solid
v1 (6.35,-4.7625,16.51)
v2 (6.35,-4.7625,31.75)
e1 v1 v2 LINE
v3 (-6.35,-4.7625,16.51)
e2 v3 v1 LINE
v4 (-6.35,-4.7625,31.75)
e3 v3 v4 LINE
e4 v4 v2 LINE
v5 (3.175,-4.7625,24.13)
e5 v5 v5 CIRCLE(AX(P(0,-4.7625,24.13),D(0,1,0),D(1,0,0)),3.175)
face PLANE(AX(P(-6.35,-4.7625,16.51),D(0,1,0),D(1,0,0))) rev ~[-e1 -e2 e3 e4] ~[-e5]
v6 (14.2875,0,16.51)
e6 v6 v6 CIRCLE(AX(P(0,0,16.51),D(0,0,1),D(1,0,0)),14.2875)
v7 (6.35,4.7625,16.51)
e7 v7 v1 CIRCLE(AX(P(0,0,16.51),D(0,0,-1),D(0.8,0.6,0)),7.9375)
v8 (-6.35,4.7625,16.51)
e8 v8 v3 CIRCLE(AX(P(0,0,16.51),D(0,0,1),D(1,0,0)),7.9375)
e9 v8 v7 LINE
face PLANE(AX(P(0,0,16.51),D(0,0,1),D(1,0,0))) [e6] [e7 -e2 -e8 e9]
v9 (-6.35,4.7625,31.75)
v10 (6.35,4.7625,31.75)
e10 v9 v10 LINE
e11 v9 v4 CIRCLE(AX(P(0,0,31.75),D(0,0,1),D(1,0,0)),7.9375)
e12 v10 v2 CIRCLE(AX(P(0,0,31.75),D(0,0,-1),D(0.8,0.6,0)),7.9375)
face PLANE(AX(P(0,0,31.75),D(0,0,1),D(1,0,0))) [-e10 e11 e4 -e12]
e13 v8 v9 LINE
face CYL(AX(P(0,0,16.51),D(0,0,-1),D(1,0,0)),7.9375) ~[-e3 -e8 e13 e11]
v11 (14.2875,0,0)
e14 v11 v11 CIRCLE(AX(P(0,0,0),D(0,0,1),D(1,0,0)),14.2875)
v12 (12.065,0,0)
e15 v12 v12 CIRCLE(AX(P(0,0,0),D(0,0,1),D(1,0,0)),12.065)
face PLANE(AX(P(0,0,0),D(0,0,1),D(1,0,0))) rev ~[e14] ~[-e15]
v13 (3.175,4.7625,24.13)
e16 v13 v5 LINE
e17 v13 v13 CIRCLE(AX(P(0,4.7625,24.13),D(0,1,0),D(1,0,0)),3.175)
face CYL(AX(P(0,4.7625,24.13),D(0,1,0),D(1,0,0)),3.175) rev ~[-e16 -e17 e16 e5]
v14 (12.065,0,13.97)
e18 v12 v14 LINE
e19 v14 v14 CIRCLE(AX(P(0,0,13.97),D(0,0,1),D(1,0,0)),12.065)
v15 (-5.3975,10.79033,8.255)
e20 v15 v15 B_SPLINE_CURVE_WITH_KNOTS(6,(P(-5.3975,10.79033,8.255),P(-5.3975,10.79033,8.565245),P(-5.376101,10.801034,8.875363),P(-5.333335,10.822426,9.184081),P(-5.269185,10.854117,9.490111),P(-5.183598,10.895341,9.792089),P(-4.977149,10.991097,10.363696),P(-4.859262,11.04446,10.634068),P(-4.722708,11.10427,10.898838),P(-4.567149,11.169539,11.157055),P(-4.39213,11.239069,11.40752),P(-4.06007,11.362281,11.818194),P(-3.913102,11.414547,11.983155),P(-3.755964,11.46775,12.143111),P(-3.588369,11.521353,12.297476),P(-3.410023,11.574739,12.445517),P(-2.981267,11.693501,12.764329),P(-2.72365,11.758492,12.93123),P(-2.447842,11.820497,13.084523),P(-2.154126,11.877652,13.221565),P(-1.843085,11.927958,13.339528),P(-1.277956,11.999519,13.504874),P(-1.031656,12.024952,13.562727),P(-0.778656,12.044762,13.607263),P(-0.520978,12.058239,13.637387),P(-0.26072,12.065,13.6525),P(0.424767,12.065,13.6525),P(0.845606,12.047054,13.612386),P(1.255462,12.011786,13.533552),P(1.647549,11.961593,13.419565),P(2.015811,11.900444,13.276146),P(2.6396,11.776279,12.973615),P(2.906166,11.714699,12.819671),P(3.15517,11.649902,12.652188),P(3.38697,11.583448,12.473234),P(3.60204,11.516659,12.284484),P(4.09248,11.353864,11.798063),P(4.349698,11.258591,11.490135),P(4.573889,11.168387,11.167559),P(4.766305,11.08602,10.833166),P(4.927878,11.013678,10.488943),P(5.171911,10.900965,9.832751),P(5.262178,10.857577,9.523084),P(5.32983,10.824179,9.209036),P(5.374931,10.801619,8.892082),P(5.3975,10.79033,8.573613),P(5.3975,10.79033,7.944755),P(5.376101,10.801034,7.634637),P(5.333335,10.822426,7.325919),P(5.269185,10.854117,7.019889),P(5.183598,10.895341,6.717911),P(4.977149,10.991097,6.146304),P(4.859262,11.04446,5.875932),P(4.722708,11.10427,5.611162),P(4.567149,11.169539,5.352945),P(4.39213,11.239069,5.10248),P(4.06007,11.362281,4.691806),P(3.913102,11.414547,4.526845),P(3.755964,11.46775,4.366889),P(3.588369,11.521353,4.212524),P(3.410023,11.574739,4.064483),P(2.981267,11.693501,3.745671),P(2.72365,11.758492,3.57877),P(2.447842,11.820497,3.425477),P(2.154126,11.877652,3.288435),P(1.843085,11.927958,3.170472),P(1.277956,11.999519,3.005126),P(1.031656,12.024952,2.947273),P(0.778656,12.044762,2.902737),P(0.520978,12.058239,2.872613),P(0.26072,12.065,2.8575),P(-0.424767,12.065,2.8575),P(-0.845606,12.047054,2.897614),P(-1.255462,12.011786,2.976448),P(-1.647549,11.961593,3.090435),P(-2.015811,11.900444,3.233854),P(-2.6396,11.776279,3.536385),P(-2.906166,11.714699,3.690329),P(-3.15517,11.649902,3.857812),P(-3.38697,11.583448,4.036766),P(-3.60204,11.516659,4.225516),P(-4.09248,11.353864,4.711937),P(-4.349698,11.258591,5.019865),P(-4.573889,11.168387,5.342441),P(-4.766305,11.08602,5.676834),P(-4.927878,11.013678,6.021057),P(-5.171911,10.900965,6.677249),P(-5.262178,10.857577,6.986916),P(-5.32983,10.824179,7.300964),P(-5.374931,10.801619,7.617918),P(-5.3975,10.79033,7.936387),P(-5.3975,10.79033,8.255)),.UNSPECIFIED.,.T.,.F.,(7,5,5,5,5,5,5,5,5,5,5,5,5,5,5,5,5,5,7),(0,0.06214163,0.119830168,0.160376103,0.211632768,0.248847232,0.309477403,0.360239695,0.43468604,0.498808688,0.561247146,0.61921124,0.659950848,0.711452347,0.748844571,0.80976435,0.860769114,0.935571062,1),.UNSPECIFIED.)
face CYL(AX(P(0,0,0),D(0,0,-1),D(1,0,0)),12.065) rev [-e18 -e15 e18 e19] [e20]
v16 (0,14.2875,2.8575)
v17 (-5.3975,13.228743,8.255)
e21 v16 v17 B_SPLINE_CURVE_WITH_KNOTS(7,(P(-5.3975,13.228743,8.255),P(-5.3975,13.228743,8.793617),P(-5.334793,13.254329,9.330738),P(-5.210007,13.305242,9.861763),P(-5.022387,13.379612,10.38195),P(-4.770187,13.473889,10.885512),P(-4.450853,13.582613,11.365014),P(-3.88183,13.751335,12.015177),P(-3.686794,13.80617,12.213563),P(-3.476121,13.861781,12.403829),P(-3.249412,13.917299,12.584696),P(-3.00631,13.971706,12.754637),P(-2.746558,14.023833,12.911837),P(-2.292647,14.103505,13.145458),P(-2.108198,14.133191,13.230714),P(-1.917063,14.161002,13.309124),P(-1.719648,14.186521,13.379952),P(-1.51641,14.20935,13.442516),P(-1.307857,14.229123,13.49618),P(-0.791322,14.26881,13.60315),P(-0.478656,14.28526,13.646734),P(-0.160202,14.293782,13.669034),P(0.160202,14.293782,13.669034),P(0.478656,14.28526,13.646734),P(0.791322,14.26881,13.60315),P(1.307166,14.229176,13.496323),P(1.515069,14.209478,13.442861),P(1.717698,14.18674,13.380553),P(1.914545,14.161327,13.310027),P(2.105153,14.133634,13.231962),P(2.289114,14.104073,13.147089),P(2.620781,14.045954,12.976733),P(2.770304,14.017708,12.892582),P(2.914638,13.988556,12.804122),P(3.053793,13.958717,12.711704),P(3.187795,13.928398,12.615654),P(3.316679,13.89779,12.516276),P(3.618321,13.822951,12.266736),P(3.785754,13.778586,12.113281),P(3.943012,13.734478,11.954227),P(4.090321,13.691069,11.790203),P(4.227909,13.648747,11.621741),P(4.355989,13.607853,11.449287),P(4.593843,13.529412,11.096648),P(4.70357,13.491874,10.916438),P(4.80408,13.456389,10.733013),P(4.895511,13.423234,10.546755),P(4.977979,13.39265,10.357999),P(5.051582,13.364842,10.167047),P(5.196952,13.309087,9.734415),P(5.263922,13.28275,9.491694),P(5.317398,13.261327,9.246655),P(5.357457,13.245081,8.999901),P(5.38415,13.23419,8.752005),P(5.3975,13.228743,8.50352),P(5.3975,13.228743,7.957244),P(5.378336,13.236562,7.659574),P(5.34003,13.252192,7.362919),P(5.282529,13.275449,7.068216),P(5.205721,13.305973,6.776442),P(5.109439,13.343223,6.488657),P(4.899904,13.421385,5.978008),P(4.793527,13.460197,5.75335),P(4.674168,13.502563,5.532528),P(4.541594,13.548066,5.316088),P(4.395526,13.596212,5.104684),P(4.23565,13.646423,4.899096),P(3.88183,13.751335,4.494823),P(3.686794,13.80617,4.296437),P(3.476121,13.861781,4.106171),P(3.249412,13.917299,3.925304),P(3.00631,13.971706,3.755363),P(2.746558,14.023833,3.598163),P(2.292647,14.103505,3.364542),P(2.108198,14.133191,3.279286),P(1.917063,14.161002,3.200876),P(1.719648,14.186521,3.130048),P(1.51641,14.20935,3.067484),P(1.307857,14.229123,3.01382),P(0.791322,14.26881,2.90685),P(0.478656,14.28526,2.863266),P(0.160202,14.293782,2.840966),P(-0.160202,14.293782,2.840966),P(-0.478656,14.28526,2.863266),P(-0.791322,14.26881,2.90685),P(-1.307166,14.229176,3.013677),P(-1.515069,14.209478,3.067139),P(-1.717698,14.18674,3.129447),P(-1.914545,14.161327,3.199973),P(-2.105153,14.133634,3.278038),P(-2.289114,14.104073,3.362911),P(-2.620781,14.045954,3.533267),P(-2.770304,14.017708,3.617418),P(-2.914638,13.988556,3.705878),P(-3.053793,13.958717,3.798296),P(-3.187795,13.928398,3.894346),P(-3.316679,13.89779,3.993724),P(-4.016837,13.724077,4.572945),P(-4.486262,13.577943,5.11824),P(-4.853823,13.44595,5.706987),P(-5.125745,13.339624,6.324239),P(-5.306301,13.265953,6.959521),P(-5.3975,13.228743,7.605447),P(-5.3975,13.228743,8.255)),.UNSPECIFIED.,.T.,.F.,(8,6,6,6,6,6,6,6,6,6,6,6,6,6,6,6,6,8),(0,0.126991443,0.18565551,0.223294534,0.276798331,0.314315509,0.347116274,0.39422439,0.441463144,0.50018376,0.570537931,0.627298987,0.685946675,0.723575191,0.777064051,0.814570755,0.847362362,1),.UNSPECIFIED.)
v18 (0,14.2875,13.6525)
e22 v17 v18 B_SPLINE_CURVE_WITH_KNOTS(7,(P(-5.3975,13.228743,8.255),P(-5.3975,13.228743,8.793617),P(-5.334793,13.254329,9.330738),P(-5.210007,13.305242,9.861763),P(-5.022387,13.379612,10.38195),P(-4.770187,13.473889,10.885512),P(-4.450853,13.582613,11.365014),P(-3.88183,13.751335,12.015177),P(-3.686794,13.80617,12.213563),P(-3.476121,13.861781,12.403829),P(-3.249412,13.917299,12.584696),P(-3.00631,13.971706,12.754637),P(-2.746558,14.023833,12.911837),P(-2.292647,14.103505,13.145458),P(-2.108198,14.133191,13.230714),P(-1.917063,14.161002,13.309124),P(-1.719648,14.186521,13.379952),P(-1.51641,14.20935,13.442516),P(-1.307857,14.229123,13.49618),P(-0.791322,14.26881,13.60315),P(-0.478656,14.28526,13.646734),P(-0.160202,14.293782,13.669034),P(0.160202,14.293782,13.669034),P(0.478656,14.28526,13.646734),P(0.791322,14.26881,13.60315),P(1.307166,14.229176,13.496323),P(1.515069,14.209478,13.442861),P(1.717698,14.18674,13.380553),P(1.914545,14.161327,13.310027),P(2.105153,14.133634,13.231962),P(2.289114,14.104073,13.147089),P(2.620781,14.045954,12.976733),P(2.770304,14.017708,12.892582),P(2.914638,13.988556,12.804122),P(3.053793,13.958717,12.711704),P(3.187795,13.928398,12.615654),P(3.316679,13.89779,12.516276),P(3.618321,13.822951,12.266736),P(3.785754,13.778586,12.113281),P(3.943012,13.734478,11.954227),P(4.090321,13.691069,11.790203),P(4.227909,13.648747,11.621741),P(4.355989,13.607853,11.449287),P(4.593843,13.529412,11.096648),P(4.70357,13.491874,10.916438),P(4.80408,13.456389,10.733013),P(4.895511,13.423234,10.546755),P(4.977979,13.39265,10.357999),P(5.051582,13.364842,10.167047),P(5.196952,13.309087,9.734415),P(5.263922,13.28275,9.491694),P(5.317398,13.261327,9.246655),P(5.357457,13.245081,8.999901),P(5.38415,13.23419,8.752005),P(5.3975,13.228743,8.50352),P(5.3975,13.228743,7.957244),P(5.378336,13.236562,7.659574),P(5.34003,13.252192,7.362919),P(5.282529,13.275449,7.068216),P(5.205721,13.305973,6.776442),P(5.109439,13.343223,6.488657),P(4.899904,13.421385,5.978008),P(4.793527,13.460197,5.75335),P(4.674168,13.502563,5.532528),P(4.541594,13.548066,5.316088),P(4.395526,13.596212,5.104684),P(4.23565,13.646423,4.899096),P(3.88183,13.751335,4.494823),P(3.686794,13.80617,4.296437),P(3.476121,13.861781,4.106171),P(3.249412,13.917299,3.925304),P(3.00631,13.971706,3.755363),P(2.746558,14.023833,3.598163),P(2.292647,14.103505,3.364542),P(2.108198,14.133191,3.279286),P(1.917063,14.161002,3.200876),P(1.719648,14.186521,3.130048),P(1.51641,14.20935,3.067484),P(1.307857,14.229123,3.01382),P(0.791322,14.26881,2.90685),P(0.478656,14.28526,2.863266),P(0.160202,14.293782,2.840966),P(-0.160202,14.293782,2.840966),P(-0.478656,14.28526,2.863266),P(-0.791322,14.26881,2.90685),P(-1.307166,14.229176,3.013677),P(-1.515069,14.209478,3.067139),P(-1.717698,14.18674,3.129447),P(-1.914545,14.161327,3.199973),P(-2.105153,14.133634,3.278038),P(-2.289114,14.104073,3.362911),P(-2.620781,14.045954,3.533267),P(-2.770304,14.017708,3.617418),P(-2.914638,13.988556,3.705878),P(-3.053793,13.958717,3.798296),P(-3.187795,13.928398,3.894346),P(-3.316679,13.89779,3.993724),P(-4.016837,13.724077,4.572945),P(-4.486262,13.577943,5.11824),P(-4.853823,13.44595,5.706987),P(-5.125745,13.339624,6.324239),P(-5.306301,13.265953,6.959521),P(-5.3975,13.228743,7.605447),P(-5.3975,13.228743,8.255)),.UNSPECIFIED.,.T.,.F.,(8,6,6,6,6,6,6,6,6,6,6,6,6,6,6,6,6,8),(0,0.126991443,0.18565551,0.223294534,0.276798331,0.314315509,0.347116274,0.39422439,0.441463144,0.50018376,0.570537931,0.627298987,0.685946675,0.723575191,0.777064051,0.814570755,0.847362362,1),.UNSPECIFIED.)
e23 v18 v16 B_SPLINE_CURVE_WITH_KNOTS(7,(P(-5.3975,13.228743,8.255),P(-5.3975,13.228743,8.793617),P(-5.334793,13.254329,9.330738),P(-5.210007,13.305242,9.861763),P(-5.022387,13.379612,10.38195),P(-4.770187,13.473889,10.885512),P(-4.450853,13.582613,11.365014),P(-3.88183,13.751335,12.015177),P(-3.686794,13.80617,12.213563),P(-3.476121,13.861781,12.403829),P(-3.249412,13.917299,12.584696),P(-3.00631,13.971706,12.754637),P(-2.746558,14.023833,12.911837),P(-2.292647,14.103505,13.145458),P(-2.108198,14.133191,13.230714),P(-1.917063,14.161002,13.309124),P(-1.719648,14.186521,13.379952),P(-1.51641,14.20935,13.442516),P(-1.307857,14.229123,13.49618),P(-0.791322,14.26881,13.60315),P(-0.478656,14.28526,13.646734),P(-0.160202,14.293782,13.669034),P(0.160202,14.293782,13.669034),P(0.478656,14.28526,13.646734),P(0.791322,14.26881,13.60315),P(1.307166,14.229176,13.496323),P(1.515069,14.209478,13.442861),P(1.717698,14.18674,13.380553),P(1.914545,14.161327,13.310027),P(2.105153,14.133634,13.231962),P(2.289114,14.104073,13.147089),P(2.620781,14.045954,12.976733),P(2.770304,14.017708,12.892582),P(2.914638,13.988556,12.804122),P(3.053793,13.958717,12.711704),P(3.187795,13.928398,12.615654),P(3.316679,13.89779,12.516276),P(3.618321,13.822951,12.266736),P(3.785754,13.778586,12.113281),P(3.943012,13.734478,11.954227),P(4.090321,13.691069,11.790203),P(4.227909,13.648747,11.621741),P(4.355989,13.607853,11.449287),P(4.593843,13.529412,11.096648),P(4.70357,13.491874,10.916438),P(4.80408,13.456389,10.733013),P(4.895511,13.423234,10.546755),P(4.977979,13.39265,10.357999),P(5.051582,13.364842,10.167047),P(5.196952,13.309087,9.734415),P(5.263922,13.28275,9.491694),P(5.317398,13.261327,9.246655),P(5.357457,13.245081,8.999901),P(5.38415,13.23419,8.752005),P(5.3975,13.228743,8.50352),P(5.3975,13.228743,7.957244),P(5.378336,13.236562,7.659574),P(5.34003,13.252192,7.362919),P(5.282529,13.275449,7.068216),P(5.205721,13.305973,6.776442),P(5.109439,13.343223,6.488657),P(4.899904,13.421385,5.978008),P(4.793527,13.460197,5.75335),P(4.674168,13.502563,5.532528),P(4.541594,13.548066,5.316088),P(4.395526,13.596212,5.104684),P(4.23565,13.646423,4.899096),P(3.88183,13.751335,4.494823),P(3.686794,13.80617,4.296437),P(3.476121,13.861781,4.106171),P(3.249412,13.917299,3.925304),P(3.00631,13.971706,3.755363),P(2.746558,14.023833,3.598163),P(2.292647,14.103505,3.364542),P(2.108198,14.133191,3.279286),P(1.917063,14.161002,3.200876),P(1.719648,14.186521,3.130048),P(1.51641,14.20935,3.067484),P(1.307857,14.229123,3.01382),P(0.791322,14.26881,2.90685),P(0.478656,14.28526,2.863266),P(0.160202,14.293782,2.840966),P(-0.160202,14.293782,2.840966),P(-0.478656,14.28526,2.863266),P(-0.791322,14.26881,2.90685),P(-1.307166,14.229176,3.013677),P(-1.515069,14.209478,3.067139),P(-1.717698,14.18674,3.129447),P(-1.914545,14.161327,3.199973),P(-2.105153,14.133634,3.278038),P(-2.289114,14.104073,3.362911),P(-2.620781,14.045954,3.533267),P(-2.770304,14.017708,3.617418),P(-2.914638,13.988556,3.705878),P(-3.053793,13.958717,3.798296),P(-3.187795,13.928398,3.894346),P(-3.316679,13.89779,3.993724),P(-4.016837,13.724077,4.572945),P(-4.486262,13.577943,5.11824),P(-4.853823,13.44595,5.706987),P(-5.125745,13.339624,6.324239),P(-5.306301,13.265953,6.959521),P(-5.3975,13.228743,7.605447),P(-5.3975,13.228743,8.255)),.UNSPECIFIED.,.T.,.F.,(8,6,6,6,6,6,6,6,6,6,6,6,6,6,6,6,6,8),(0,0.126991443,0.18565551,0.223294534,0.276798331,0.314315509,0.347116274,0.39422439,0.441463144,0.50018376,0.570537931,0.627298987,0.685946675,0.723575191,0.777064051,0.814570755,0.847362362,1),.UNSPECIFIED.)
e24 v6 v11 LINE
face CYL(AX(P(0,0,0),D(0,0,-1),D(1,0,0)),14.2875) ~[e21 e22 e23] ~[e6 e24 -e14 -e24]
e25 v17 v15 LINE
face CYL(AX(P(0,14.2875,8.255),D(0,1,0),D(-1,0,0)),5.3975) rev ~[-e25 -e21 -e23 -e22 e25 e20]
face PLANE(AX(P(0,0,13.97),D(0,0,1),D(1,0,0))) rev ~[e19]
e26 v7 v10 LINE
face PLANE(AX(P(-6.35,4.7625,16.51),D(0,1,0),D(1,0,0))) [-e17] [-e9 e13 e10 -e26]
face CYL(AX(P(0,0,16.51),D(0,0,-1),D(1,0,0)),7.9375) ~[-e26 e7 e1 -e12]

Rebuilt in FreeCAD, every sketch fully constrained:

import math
import FreeCAD as App
import Part
import Sketcher
Q = App.Units.Quantity

doc = App.newDocument("Part")
body = doc.addObject("PartDesign::Body", "Body")

sketch1 = doc.addObject("Sketcher::SketchObject", "Sketch")
body.addObject(sketch1)
sketch1.AttachmentSupport = (doc.XY_Plane, [""])
sketch1.MapMode = "FlatFace"
sketch1.addGeometry(Part.Circle(App.Vector(0, 0, 0), App.Vector(0, 0, 1), 14), False)
sketch1.addGeometry(Part.Circle(App.Vector(0, 0, 0), App.Vector(0, 0, 1), 12), False)
sketch1.addConstraint(Sketcher.Constraint("Coincident", 0, 3, -1, 1))
sketch1.addConstraint(Sketcher.Constraint("Coincident", 1, 3, -1, 1))
sketch1.addConstraint(Sketcher.Constraint("Diameter", 1, Q("0.95 in")))
sketch1.addConstraint(Sketcher.Constraint("Diameter", 0, Q("1.125 in")))
pad1 = doc.addObject("PartDesign::Pad", "Pad")
body.addObject(pad1)
pad1.Profile = sketch1
pad1.Length = Q("0.55 in")

sketch2 = doc.addObject("Sketcher::SketchObject", "Sketch001")
body.addObject(sketch2)
sketch2.AttachmentSupport = (doc.XY_Plane, [""])
sketch2.MapMode = "FlatFace"
sketch2.AttachmentOffset = App.Placement(App.Vector(0, 0, 0.55 * 25.4), App.Rotation())
sketch2.addGeometry(Part.Circle(App.Vector(0, 0, 0), App.Vector(0, 0, 1), 14), False)
sketch2.addConstraint(Sketcher.Constraint("Coincident", 0, 3, -1, 1))
sketch2.addConstraint(Sketcher.Constraint("Diameter", 0, Q("1.125 in")))
pad2 = doc.addObject("PartDesign::Pad", "Pad001")
body.addObject(pad2)
pad2.Profile = sketch2
pad2.Length = Q("0.1 in")

sketch3 = doc.addObject("Sketcher::SketchObject", "Sketch002")
body.addObject(sketch3)
sketch3.AttachmentSupport = (doc.XY_Plane, [""])
sketch3.MapMode = "FlatFace"
sketch3.AttachmentOffset = App.Placement(App.Vector(0, 0, 0.65 * 25.4), App.Rotation())
sketch3.addGeometry(Part.ArcOfCircle(Part.Circle(App.Vector(0, 0, 0), App.Vector(0, 0, 1), 8), math.radians(-37), math.radians(37)), False)
sketch3.addGeometry(Part.LineSegment(App.Vector(6, 5, 0), App.Vector(-6, 5, 0)), False)
sketch3.addGeometry(Part.ArcOfCircle(Part.Circle(App.Vector(0, 0, 0), App.Vector(0, 0, 1), 8), math.radians(143), math.radians(217)), False)
sketch3.addGeometry(Part.LineSegment(App.Vector(-6, -5, 0), App.Vector(6, -5, 0)), False)
sketch3.addConstraint(Sketcher.Constraint("Coincident", 0, 2, 1, 1))
sketch3.addConstraint(Sketcher.Constraint("Coincident", 1, 2, 2, 1))
sketch3.addConstraint(Sketcher.Constraint("Coincident", 2, 2, 3, 1))
sketch3.addConstraint(Sketcher.Constraint("Coincident", 3, 2, 0, 1))
sketch3.addConstraint(Sketcher.Constraint("Horizontal", 1))
sketch3.addConstraint(Sketcher.Constraint("Horizontal", 3))
sketch3.addConstraint(Sketcher.Constraint("Coincident", 0, 3, -1, 1))
sketch3.addConstraint(Sketcher.Constraint("Coincident", 2, 3, -1, 1))
sketch3.addConstraint(Sketcher.Constraint("Equal", 0, 2))
sketch3.addConstraint(Sketcher.Constraint("Vertical", 1, 2, 2, 2))
sketch3.addConstraint(Sketcher.Constraint("Radius", 0, Q("0.3125 in")))
sketch3.addConstraint(Sketcher.Constraint("DistanceX", 1, 2, 1, 1, Q("0.5 in")))
pad3 = doc.addObject("PartDesign::Pad", "Pad002")
body.addObject(pad3)
pad3.Profile = sketch3
pad3.Length = Q("0.6 in")

sketch4 = doc.addObject("Sketcher::SketchObject", "Sketch003")
body.addObject(sketch4)
sketch4.AttachmentSupport = (doc.XZ_Plane, [""])
sketch4.MapMode = "FlatFace"
sketch4.AttachmentOffset = App.Placement(App.Vector(0, 0, -0.1875 * 25.4), App.Rotation())
sketch4.addGeometry(Part.Circle(App.Vector(0, 24.1, 0), App.Vector(0, 0, 1), 3.2), False)
sketch4.addConstraint(Sketcher.Constraint("PointOnObject", 0, 3, -2))
sketch4.addConstraint(Sketcher.Constraint("Diameter", 0, Q("0.25 in")))
sketch4.addConstraint(Sketcher.Constraint("DistanceY", -1, 1, 0, 3, Q("0.95 in")))
pocket1 = doc.addObject("PartDesign::Pocket", "Pocket")
body.addObject(pocket1)
pocket1.Profile = sketch4
pocket1.Length = Q("0.6 in")
pocket1.Reversed = True

sketch5 = doc.addObject("Sketcher::SketchObject", "Sketch004")
body.addObject(sketch5)
sketch5.AttachmentSupport = (doc.XZ_Plane, [""])
sketch5.MapMode = "FlatFace"
sketch5.AttachmentOffset = App.Placement(App.Vector(0, 0, -0.5625 * 25.4), App.Rotation())
sketch5.addGeometry(Part.Circle(App.Vector(0, 8, 0), App.Vector(0, 0, 1), 5), False)
sketch5.addConstraint(Sketcher.Constraint("PointOnObject", 0, 3, -2))
sketch5.addConstraint(Sketcher.Constraint("Diameter", 0, Q("0.425 in")))
sketch5.addConstraint(Sketcher.Constraint("DistanceY", -1, 1, 0, 3, Q("0.325 in")))
pocket2 = doc.addObject("PartDesign::Pocket", "Pocket001")
body.addObject(pocket2)
pocket2.Profile = sketch5
pocket2.Length = Q("0.6 in")
pocket2.Reversed = True

doc.recompute()
